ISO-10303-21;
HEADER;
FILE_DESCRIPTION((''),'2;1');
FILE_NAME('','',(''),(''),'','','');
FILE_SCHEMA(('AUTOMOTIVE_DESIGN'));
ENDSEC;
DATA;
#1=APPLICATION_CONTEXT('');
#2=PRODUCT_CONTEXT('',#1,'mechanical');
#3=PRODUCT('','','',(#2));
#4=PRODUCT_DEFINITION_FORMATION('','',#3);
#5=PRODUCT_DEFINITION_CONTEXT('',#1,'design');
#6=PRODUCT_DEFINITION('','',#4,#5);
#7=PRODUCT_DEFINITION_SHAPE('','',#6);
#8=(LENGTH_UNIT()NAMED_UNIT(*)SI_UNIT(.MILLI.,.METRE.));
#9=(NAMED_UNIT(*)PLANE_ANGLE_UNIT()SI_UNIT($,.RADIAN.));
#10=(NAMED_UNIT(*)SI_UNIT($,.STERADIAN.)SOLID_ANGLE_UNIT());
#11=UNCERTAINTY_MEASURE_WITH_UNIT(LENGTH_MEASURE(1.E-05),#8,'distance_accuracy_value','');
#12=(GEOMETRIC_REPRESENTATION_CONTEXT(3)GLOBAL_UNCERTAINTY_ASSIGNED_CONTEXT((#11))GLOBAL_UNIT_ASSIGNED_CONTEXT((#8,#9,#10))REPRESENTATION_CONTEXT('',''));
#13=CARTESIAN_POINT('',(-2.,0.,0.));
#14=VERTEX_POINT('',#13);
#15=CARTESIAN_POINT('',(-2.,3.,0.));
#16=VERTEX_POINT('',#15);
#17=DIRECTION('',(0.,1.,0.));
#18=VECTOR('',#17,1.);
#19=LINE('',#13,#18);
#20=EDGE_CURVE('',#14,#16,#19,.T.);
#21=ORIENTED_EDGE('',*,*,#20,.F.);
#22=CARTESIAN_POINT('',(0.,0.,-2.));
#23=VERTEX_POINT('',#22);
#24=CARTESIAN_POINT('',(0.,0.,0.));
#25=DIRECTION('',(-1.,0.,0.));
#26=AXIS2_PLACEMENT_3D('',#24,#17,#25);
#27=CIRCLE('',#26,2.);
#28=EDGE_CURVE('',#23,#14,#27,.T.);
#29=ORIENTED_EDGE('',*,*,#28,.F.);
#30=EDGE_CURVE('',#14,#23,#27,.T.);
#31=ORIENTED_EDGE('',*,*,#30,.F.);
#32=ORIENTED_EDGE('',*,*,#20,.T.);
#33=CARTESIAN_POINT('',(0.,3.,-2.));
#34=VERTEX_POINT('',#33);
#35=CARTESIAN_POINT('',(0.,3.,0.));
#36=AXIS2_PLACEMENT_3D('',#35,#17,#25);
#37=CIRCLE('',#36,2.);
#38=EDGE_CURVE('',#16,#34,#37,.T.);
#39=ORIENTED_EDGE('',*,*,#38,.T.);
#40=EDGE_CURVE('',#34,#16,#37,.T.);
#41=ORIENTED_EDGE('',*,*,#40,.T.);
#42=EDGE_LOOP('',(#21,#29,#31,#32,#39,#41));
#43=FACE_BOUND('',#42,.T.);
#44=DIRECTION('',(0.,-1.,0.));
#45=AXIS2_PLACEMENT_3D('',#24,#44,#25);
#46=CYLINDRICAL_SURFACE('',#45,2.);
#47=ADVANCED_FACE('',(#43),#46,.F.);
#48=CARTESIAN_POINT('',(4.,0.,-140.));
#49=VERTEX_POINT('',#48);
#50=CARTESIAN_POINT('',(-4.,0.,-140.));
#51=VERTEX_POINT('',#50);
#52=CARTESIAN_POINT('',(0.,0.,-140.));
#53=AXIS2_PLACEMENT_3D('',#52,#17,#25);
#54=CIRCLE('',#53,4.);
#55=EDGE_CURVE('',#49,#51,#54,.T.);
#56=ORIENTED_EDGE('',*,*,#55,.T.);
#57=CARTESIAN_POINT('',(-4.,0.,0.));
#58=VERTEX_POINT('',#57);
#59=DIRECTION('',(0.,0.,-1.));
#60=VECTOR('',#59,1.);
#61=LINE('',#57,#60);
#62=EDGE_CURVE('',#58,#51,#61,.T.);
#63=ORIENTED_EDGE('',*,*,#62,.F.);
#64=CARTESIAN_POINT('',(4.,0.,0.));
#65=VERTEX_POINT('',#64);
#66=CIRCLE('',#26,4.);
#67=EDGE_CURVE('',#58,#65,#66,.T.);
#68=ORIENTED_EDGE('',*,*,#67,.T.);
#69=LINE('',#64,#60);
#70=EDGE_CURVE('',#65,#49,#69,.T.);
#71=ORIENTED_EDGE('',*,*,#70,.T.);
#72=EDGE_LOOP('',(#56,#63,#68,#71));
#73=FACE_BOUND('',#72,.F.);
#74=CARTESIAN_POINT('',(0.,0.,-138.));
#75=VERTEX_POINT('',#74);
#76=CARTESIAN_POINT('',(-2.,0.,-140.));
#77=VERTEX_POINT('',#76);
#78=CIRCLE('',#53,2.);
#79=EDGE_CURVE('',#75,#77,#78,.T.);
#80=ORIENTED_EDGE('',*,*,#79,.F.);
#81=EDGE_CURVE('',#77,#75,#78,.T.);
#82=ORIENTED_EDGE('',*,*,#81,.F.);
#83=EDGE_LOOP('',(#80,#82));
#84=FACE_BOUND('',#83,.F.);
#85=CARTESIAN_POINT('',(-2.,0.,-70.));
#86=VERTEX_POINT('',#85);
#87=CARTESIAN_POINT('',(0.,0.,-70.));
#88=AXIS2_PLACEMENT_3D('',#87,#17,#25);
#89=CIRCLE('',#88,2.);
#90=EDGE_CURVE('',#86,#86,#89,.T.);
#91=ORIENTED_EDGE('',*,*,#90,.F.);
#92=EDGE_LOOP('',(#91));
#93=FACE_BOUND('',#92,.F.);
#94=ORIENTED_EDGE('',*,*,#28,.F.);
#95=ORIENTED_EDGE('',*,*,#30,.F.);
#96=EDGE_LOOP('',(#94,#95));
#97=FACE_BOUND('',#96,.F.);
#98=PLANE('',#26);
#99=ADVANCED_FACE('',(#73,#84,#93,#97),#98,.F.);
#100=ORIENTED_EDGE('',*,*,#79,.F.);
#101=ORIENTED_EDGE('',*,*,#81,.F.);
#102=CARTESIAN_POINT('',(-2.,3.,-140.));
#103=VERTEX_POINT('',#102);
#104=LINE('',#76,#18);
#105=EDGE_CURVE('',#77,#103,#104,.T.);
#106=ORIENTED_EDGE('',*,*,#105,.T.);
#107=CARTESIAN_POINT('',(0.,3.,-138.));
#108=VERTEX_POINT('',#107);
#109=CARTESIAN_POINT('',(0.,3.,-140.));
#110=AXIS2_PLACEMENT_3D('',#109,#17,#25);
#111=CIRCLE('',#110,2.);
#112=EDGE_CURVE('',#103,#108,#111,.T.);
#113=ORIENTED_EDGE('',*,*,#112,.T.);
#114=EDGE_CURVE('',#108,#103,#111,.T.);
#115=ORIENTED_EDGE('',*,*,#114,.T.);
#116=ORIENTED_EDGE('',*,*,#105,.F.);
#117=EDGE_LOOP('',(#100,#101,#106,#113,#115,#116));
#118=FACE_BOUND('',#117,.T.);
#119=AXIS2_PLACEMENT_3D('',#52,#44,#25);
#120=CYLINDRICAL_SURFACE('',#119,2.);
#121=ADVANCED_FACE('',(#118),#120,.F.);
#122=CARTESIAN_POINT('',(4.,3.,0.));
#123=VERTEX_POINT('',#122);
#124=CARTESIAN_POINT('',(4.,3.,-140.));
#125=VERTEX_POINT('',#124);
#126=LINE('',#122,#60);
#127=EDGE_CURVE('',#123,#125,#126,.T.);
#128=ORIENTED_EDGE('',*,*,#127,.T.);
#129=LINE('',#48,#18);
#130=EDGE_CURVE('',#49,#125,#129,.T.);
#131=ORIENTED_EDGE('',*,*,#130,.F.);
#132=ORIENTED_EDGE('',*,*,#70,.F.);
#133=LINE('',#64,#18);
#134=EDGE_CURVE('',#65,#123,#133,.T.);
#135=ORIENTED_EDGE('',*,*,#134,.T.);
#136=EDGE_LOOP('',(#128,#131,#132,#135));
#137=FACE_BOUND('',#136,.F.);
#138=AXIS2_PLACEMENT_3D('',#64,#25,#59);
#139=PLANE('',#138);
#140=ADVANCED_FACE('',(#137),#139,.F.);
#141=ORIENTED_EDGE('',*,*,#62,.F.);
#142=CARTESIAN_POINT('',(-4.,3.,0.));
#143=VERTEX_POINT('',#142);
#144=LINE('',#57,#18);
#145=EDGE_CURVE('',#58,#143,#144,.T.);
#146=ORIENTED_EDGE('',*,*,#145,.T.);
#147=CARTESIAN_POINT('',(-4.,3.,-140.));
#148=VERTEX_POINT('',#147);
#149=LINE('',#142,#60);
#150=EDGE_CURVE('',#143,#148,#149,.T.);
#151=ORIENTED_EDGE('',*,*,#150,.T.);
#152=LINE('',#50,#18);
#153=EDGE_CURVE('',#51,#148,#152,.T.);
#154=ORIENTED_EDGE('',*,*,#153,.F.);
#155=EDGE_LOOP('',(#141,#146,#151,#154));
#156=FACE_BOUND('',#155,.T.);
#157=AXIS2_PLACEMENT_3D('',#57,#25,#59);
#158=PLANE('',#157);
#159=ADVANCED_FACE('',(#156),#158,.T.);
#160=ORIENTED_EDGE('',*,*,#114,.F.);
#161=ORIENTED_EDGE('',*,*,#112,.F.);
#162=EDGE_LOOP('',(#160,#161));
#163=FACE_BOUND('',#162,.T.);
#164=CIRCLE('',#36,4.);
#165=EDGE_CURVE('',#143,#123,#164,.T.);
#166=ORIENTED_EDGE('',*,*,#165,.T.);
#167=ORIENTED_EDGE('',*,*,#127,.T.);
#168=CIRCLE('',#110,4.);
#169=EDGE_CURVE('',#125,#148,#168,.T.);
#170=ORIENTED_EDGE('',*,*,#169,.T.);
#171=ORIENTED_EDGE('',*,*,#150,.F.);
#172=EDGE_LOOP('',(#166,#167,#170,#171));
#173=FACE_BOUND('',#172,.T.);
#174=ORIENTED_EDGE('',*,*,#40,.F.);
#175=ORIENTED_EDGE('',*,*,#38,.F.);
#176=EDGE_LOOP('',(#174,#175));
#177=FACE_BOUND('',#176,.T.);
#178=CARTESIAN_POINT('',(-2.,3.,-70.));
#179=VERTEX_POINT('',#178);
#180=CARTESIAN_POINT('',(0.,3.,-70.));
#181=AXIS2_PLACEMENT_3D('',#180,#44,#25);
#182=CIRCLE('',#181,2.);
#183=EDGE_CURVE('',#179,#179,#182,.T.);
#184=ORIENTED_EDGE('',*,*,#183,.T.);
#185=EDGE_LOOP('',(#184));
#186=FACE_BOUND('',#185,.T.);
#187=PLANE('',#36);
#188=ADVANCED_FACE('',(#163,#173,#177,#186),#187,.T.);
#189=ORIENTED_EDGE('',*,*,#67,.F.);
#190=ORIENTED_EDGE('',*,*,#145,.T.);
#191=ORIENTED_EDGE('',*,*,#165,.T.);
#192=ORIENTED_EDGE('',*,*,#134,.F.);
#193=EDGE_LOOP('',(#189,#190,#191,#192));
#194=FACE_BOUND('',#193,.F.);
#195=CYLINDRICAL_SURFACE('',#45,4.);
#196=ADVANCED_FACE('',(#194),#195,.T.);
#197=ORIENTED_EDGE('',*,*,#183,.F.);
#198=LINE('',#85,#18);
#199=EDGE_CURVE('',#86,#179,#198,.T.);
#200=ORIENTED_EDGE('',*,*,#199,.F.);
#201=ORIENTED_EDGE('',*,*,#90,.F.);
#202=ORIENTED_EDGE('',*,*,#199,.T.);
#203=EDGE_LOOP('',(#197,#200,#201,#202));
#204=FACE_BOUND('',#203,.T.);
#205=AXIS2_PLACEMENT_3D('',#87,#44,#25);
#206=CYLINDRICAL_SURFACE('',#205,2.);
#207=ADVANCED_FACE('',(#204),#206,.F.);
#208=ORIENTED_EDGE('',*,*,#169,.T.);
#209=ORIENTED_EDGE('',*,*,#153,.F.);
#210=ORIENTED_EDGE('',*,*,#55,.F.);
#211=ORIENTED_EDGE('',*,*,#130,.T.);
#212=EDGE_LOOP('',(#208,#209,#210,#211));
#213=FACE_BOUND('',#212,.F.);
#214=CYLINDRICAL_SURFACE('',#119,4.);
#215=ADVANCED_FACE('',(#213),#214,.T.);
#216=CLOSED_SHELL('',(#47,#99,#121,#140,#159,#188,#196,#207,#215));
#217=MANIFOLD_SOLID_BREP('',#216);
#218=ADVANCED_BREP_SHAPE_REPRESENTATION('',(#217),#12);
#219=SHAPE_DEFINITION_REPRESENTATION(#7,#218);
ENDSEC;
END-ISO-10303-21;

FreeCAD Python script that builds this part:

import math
import FreeCAD as App
import Part
import Sketcher

V = App.Vector

doc = App.newDocument("Part")
body = doc.addObject("PartDesign::Body", "Body")

# Sketch on XZ plane
sketch1 = doc.addObject("Sketcher::SketchObject", "Sketch")
body.addObject(sketch1)
sketch1.AttachmentSupport = (doc.XZ_Plane, [""])
sketch1.MapMode = "FlatFace"
sketch1.addGeometry(Part.ArcOfCircle(Part.Circle(V(0, 0, 0), V(0, 0, 1), 4), math.radians(0), math.radians(180)), False)
sketch1.addGeometry(Part.LineSegment(V(4, 0, 0), V(4, -140, 0)), False)
sketch1.addGeometry(Part.ArcOfCircle(Part.Circle(V(0, -140, 0), V(0, 0, 1), 4), math.radians(180), math.radians(360)), False)
sketch1.addGeometry(Part.LineSegment(V(-4, -140, 0), V(-4, 0, 0)), False)
sketch1.addGeometry(Part.Circle(V(0, 0, 0), V(0, 0, 1), 2), False)
sketch1.addGeometry(Part.Circle(V(0, -70, 0), V(0, 0, 1), 2), False)
sketch1.addGeometry(Part.Circle(V(0, -140, 0), V(0, 0, 1), 2), False)
sketch1.addConstraint(Sketcher.Constraint("Tangent", 0, 1, 1, 1))
sketch1.addConstraint(Sketcher.Constraint("Tangent", 1, 2, 2, 2))
sketch1.addConstraint(Sketcher.Constraint("Tangent", 2, 1, 3, 1))
sketch1.addConstraint(Sketcher.Constraint("Tangent", 3, 2, 0, 2))
sketch1.addConstraint(Sketcher.Constraint("Vertical", 1))
sketch1.addConstraint(Sketcher.Constraint("Vertical", 3))
sketch1.addConstraint(Sketcher.Constraint("Coincident", 0, 3, -1, 1))
sketch1.addConstraint(Sketcher.Constraint("Coincident", 4, 3, -1, 1))
sketch1.addConstraint(Sketcher.Constraint("Coincident", 6, 3, 2, 3))
sketch1.addConstraint(Sketcher.Constraint("Equal", 4, 5))
sketch1.addConstraint(Sketcher.Constraint("Equal", 5, 6))
sketch1.addConstraint(Sketcher.Constraint("PointOnObject", 5, 3, -2))
sketch1.addConstraint(Sketcher.Constraint("Diameter", 4, 4.0))
sketch1.addConstraint(Sketcher.Constraint("Radius", 0, 4.0))
sketch1.addConstraint(Sketcher.Constraint("DistanceY", 1, 2, 1, 1, 140.0))
sketch1.addConstraint(Sketcher.Constraint("DistanceY", 5, 3, -1, 1, 70.0))
pad1 = doc.addObject("PartDesign::Pad", "Pad")
body.addObject(pad1)
pad1.Profile = sketch1
pad1.Length = 3
pad1.Reversed = True

doc.recompute()
